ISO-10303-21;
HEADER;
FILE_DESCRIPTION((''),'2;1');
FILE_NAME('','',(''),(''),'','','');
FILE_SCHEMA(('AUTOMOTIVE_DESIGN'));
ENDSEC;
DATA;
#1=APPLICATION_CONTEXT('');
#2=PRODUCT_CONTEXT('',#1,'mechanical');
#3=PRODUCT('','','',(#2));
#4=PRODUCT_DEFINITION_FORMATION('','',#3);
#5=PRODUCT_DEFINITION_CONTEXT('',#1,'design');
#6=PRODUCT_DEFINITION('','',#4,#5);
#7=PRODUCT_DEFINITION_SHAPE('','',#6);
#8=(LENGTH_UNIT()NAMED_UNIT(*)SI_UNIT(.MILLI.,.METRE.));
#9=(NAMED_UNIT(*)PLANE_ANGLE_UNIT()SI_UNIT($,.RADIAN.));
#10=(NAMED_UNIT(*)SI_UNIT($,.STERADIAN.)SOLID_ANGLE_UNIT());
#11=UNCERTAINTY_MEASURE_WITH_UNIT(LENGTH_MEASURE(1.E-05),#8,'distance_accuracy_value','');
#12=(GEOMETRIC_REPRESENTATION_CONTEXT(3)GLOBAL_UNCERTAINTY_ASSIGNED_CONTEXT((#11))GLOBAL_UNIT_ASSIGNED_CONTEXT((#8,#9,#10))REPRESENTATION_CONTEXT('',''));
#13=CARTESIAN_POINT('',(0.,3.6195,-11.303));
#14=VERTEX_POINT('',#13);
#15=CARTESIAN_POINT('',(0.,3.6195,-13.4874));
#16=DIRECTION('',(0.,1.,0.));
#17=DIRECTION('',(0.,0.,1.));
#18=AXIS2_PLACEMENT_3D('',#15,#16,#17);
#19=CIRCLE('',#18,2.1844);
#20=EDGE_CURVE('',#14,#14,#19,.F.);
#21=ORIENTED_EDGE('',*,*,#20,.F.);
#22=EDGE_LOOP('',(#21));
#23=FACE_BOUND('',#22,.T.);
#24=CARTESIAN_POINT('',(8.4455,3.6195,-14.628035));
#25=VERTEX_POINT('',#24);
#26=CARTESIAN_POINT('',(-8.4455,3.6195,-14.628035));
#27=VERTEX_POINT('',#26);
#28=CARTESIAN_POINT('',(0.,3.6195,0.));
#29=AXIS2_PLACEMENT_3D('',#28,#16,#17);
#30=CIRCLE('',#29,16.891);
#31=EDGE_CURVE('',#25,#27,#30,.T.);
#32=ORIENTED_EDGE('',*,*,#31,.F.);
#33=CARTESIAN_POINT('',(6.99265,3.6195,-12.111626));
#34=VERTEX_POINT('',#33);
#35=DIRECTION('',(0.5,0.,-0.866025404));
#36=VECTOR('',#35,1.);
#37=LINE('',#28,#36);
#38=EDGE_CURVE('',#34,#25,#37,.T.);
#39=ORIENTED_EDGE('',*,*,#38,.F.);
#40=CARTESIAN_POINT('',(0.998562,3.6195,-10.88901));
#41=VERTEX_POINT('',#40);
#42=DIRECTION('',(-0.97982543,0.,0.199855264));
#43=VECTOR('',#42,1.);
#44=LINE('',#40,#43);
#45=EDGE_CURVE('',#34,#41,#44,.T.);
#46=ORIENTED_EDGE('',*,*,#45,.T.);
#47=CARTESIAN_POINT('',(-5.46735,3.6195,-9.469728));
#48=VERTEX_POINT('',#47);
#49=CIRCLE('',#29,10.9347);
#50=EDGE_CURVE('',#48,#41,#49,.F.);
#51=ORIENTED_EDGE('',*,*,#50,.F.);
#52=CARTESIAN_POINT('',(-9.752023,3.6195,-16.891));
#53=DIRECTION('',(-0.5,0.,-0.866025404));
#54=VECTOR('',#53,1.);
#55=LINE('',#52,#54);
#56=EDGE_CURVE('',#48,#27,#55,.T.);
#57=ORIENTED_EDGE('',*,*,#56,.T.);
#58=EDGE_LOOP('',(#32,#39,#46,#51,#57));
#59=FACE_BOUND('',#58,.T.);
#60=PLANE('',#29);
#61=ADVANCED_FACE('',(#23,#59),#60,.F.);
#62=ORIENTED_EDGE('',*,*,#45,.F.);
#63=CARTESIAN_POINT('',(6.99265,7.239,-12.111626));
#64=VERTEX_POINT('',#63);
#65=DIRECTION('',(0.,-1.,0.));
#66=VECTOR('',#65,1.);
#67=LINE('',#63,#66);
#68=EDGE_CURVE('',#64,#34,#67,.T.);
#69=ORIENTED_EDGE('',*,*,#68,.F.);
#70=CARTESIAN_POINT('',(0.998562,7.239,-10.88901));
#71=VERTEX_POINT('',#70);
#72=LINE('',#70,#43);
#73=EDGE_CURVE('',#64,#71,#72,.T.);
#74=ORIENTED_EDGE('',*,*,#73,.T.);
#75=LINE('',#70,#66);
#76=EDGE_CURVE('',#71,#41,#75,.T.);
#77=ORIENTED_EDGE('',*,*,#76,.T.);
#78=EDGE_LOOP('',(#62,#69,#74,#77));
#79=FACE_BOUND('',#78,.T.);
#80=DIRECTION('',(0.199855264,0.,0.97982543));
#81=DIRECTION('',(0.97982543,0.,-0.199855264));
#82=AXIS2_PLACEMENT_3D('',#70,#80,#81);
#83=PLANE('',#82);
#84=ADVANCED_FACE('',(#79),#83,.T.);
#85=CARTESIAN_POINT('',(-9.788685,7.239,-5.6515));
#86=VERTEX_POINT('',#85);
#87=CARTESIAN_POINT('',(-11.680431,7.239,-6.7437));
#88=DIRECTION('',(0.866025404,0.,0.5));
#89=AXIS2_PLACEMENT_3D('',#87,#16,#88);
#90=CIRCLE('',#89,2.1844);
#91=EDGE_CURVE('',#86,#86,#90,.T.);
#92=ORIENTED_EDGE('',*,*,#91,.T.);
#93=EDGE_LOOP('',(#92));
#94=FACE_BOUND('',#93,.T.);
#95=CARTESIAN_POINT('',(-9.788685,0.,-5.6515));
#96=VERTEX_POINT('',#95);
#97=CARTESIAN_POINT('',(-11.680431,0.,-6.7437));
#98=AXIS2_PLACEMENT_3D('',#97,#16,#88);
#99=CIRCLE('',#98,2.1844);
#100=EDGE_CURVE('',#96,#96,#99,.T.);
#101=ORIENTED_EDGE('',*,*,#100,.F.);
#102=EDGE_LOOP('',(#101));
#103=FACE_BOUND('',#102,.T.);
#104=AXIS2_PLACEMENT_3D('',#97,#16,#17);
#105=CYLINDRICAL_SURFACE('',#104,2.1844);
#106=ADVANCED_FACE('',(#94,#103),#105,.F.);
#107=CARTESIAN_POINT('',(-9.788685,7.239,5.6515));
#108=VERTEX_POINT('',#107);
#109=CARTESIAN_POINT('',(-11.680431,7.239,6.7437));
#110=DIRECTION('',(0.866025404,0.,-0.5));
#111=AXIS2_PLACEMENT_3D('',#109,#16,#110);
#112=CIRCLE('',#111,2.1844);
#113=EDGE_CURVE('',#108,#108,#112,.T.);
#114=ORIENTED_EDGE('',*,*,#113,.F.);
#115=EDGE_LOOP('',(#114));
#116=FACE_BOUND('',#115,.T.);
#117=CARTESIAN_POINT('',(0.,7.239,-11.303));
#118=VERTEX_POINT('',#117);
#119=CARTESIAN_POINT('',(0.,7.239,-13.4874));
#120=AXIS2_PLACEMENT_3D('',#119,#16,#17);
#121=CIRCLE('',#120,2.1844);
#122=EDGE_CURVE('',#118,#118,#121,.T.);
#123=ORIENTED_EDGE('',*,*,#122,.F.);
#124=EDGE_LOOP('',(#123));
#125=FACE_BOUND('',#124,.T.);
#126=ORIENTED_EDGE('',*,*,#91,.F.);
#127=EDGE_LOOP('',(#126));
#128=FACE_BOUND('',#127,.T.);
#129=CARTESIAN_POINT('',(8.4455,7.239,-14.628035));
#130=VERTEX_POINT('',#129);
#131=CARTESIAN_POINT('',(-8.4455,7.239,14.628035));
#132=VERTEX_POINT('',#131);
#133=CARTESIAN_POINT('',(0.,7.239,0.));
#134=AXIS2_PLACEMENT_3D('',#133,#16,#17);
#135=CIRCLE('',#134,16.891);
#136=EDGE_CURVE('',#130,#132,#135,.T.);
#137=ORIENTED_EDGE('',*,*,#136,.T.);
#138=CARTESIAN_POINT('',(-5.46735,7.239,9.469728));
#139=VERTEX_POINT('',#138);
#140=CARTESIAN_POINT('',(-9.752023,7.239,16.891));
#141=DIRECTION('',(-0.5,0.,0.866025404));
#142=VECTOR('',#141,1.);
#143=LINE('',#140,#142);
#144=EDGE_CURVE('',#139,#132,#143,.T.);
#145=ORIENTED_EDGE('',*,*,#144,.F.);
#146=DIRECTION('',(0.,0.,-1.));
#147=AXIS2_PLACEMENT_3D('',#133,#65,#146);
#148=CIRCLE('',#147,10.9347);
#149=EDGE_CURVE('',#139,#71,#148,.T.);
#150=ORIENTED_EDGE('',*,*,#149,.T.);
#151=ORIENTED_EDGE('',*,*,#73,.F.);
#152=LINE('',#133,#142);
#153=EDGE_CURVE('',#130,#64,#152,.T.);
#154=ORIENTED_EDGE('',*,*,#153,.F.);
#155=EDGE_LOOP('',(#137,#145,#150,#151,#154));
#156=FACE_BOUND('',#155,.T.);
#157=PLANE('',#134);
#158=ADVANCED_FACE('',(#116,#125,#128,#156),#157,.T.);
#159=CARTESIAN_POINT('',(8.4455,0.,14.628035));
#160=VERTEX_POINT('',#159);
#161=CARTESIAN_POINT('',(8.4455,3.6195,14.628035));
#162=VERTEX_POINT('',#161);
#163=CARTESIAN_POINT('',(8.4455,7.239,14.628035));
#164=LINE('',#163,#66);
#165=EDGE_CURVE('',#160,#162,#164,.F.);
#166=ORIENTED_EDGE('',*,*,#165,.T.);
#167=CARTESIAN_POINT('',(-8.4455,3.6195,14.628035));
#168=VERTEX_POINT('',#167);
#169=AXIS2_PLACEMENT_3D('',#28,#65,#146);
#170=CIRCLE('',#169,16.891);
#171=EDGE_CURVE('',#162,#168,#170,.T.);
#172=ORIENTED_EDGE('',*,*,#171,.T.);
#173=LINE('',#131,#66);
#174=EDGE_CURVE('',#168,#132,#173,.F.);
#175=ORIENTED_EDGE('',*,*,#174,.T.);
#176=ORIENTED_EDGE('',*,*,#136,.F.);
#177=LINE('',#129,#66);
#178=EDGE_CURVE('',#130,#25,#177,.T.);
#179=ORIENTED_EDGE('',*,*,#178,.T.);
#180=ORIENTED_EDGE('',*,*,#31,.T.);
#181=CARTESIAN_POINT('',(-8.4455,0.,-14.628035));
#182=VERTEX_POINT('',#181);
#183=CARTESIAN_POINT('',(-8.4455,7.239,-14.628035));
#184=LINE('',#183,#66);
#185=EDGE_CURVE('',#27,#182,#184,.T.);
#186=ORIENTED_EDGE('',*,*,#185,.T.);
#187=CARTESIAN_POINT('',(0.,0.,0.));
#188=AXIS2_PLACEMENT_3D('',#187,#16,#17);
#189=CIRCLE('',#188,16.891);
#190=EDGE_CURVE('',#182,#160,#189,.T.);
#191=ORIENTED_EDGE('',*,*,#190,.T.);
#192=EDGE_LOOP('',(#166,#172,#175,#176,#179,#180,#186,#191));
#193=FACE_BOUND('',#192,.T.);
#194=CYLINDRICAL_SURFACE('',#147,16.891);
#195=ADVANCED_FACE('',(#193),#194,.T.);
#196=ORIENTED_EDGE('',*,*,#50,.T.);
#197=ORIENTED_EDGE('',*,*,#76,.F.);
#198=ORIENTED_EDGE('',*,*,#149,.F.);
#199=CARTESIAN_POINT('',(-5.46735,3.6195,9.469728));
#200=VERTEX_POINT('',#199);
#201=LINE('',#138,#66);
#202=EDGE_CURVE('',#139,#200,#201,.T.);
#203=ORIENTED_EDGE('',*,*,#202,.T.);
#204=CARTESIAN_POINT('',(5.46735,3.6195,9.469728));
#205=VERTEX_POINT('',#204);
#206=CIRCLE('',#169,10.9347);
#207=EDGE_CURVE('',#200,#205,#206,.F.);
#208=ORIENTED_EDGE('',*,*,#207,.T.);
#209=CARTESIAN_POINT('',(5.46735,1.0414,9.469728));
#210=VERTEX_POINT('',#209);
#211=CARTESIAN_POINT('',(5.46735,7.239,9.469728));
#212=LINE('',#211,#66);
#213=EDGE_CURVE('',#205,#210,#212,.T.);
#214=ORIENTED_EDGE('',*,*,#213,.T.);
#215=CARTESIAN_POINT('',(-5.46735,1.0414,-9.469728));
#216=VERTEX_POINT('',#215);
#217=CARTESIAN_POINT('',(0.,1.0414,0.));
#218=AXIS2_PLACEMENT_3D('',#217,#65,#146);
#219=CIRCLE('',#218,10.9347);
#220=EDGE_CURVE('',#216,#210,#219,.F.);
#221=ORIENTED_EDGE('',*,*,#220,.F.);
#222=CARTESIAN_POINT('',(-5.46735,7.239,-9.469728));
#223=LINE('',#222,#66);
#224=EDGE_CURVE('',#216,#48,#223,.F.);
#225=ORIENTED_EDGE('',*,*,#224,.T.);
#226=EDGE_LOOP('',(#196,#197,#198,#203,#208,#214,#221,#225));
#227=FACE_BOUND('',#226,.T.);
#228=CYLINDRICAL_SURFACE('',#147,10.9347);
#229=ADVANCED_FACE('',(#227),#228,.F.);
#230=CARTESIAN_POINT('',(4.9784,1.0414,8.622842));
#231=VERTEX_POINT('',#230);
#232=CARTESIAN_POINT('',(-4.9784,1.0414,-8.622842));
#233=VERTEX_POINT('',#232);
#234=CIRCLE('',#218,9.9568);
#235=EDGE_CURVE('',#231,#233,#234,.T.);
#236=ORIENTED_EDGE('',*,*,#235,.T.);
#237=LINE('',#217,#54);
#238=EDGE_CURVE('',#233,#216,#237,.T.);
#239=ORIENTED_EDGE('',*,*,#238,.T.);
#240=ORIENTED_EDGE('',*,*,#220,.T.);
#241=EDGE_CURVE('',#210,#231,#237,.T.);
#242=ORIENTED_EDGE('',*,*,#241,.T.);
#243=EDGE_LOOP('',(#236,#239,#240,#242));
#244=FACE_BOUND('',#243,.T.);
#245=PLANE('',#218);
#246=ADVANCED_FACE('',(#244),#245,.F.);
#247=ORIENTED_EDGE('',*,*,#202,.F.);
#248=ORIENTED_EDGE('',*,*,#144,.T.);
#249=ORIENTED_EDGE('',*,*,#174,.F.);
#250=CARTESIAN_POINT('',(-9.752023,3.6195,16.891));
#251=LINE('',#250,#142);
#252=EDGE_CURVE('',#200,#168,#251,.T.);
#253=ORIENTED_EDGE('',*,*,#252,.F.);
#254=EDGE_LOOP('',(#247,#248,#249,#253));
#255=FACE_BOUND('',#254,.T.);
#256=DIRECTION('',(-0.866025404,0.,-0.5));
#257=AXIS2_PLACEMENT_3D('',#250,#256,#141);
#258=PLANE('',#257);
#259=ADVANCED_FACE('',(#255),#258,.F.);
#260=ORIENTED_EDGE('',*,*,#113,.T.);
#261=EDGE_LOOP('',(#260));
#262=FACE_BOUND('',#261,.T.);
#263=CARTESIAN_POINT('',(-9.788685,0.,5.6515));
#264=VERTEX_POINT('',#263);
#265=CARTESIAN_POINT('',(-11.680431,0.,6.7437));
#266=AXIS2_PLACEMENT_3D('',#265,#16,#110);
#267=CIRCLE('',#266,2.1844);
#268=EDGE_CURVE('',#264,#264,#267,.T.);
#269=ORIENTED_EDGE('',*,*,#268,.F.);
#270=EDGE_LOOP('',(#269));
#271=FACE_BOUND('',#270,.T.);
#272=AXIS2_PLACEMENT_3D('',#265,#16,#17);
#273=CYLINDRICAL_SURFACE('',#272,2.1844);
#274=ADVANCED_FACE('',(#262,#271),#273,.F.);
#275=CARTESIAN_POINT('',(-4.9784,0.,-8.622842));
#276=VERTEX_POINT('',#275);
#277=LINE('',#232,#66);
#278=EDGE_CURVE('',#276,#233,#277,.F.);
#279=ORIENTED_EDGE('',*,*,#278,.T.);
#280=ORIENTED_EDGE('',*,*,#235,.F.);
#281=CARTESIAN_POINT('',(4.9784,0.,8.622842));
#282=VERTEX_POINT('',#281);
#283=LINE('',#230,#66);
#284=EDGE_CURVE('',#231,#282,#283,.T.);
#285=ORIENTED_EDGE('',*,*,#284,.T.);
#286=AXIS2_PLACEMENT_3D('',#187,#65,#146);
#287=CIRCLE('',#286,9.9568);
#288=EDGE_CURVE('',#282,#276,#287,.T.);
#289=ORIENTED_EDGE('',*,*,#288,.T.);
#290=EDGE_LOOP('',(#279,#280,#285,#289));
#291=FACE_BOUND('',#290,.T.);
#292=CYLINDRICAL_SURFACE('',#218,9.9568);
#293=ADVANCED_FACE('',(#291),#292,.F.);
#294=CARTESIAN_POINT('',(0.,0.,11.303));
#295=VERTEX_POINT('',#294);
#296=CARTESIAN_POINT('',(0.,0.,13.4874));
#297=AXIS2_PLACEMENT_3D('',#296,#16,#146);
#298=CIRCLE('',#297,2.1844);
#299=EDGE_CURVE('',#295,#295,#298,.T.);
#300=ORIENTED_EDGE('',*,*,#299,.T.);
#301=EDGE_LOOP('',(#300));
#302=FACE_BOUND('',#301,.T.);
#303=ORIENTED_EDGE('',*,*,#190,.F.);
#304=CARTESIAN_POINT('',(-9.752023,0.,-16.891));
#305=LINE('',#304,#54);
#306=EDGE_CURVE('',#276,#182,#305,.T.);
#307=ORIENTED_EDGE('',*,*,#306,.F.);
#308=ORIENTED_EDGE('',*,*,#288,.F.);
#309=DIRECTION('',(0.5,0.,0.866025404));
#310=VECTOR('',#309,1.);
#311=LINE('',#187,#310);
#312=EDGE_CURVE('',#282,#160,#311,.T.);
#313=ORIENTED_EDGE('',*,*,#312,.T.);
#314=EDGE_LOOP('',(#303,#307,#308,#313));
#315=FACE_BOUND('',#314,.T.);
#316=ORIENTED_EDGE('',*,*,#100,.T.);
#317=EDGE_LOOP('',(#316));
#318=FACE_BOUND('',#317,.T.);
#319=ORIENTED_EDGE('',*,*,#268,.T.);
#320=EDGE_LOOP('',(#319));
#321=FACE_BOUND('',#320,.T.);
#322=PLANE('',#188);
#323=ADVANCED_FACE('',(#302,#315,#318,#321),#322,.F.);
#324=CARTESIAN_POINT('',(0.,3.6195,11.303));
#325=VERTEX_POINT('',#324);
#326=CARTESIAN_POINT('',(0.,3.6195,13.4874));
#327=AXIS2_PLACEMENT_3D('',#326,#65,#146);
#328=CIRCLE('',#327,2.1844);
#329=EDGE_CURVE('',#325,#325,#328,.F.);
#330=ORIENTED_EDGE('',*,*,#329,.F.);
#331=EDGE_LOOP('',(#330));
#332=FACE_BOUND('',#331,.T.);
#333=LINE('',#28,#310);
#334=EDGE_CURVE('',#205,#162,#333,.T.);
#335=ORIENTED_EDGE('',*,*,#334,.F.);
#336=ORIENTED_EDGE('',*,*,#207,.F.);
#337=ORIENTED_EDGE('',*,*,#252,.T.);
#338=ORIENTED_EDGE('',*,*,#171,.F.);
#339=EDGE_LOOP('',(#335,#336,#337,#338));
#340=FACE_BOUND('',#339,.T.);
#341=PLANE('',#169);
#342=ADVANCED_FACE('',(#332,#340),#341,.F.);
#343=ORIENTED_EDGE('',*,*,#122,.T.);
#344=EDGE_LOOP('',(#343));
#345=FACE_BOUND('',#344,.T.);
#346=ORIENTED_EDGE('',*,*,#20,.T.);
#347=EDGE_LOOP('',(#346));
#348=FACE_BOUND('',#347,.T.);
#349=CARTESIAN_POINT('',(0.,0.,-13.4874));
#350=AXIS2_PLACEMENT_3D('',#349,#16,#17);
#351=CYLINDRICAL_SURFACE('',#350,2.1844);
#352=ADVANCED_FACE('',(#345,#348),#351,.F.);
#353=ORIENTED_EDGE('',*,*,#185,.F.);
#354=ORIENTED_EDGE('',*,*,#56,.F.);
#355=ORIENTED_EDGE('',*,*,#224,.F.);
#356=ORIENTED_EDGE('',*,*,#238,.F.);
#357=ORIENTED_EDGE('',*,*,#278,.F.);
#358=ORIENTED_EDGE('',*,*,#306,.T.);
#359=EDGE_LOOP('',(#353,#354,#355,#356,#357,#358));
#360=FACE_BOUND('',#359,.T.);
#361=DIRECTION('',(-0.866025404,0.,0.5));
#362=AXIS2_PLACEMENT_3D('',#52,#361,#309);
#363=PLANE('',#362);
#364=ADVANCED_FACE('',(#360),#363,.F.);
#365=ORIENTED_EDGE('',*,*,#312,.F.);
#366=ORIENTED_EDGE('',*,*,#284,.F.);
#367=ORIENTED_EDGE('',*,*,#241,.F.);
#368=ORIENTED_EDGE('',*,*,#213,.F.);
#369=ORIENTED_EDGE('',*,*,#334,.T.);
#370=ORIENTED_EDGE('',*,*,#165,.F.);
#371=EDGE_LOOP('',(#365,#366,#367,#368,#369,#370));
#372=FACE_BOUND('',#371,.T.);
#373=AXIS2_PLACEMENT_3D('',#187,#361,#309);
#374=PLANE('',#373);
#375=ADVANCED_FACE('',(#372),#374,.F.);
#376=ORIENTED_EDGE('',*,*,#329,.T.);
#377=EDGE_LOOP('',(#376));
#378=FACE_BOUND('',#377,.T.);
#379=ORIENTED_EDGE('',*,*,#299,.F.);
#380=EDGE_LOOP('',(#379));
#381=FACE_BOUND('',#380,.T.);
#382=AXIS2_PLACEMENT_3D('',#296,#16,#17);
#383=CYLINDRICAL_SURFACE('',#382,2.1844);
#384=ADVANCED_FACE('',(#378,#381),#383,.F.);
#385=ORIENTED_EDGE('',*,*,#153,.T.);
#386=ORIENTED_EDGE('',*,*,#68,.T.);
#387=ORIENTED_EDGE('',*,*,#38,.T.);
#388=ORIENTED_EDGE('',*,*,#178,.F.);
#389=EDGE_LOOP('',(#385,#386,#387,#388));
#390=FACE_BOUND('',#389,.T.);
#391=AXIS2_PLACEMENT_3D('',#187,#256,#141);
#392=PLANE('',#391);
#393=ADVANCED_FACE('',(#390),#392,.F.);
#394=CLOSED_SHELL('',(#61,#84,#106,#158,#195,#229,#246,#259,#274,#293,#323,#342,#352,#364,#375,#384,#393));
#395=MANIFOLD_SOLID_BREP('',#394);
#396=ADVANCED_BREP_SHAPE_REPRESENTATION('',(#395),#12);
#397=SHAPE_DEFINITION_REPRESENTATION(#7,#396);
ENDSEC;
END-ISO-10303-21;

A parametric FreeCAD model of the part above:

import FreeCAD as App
import Part
import Sketcher
from FreeCAD import Vector
Q = App.Units.Quantity


def add_polygon(sketch, points):
    """Adds a closed chain of lines whose ends are joined by coincident constraints."""
    first, n = sketch.GeometryCount, len(points)
    for a, b in zip(points, points[1:] + points[:1]):
        sketch.addGeometry(Part.LineSegment(App.Vector(*a, 0), App.Vector(*b, 0)), False)
    for i in range(n):
        sketch.addConstraint(Sketcher.Constraint("Coincident", first + i, 2, first + (i + 1) % n, 1))

doc = App.newDocument("Part")
body = doc.addObject("PartDesign::Body", "Body")

sketch1 = doc.addObject("Sketcher::SketchObject", "Sketch")
body.addObject(sketch1)
sketch1.AttachmentSupport = (doc.XZ_Plane, [""])
sketch1.MapMode = "FlatFace"
sketch1.addGeometry(Part.Circle(Vector(0, 0, 0), Vector(0, 0, 1), 17), False)
sketch1.addConstraint(Sketcher.Constraint("Coincident", 0, 3, -1, 1))
sketch1.addConstraint(Sketcher.Constraint("Diameter", 0, Q("1.33 in")))
pad1 = doc.addObject("PartDesign::Pad", "Pad")
body.addObject(pad1)
pad1.Profile = sketch1
pad1.Length = Q("0.285 in")
pad1.Reversed = True

sketch2 = doc.addObject("Sketcher::SketchObject", "Sketch001")
body.addObject(sketch2)
sketch2.AttachmentSupport = (doc.XZ_Plane, [""])
sketch2.MapMode = "FlatFace"
sketch2.addGeometry(Part.Circle(Vector(0, 0, 0), Vector(0, 0, 1), 11), False)
sketch2.addConstraint(Sketcher.Constraint("Coincident", 0, 3, -1, 1))
sketch2.addConstraint(Sketcher.Constraint("Diameter", 0, Q("0.861 in")))
pocket1 = doc.addObject("PartDesign::Pocket", "Pocket")
body.addObject(pocket1)
pocket1.Profile = sketch2
pocket1.Type = "ThroughAll"

sketch3 = doc.addObject("Sketcher::SketchObject", "Sketch002")
body.addObject(sketch3)
sketch3.AttachmentSupport = (doc.XZ_Plane, [""])
sketch3.MapMode = "FlatFace"
sketch3.addGeometry(Part.Circle(Vector(0, 0, 0), Vector(0, 0, 1), 11), False)
sketch3.addGeometry(Part.Circle(Vector(0, 0, 0), Vector(0, 0, 1), 10), False)
sketch3.addConstraint(Sketcher.Constraint("Coincident", 0, 3, -1, 1))
sketch3.addConstraint(Sketcher.Constraint("Coincident", 1, 3, -1, 1))
sketch3.addConstraint(Sketcher.Constraint("Diameter", 0, Q("0.861 in")))
sketch3.addConstraint(Sketcher.Constraint("Diameter", 1, Q("0.784 in")))
pad2 = doc.addObject("PartDesign::Pad", "Pad001")
body.addObject(pad2)
pad2.Profile = sketch3
pad2.Length = Q("0.041 in")
pad2.Reversed = True

sketch4 = doc.addObject("Sketcher::SketchObject", "Sketch003")
body.addObject(sketch4)
sketch4.AttachmentSupport = (doc.XZ_Plane, [""])
sketch4.MapMode = "FlatFace"
sketch4.AttachmentOffset = App.Placement(Vector(0, 0, -0.285 * 25.4), App.Rotation())
sketch4.addGeometry(Part.Circle(Vector(0, -13.5, 0), Vector(0, 0, 1), 2.2), False)
sketch4.addConstraint(Sketcher.Constraint("PointOnObject", 0, 3, -2))
sketch4.addConstraint(Sketcher.Constraint("Diameter", 0, Q("0.172 in")))
sketch4.addConstraint(Sketcher.Constraint("DistanceY", 0, 3, -1, 1, Q("0.531 in")))
pocket2 = doc.addObject("PartDesign::Pocket", "Pocket001")
body.addObject(pocket2)
pocket2.Profile = sketch4
pocket2.Type = "ThroughAll"
pocket2.Reversed = True
doc.recompute()

polarpattern = doc.addObject("PartDesign::PolarPattern", "PolarPattern")
body.addObject(polarpattern)
polarpattern.Originals = [pocket2]
polarpattern.Axis = (doc.Y_Axis, [""])
polarpattern.Angle = 360
polarpattern.Occurrences = 6
body.Tip = polarpattern

sketch5 = doc.addObject("Sketcher::SketchObject", "Sketch004")
body.addObject(sketch5)
sketch5.AttachmentSupport = (doc.XZ_Plane, [""])
sketch5.MapMode = "FlatFace"
sketch5.AttachmentOffset = App.Placement(Vector(0, 0, -0.285 * 25.4), App.Rotation())
add_polygon(sketch5, [(17, -29), (0, 0), (17, 29)])
sketch5.addConstraint(Sketcher.Constraint("Vertical", 2))
sketch5.addConstraint(Sketcher.Constraint("Coincident", 0, 2, -1, 1))
sketch5.addConstraint(Sketcher.Constraint("Equal", 0, 1))
sketch5.addConstraint(Sketcher.Constraint("Angle", 0, Q("120 deg")))
sketch5.addConstraint(Sketcher.Constraint("Distance", 0, Q("1.33 in")))
pocket3 = doc.addObject("PartDesign::Pocket", "Pocket002")
body.addObject(pocket3)
pocket3.Profile = sketch5
pocket3.Type = "ThroughAll"
pocket3.Reversed = True

sketch6 = doc.addObject("Sketcher::SketchObject", "Sketch005")
body.addObject(sketch6)
sketch6.AttachmentSupport = (doc.XZ_Plane, [""])
sketch6.MapMode = "FlatFace"
sketch6.AttachmentOffset = App.Placement(Vector(0, 0, -0.285 * 25.4), App.Rotation())
add_polygon(sketch6, [(10, 17), (0, 0), (-10, 17)])
sketch6.addConstraint(Sketcher.Constraint("Horizontal", 2))
sketch6.addConstraint(Sketcher.Constraint("Coincident", 0, 2, -1, 1))
sketch6.addConstraint(Sketcher.Constraint("Equal", 0, 1))
sketch6.addConstraint(Sketcher.Constraint("Angle", 0, Q("-120 deg")))
sketch6.addConstraint(Sketcher.Constraint("DistanceY", -1, 1, 1, 2, Q("0.665 in")))
pocket4 = doc.addObject("PartDesign::Pocket", "Pocket003")
body.addObject(pocket4)
pocket4.Profile = sketch6
pocket4.Length = Q("0.1425 in")
pocket4.Reversed = True

sketch7 = doc.addObject("Sketcher::SketchObject", "Sketch006")
body.addObject(sketch7)
sketch7.AttachmentSupport = (doc.XZ_Plane, [""])
sketch7.MapMode = "FlatFace"
add_polygon(sketch7, [(10, -17), (0, 0), (-10, -17)])
sketch7.addConstraint(Sketcher.Constraint("Horizontal", 2))
sketch7.addConstraint(Sketcher.Constraint("Coincident", 0, 2, -1, 1))
sketch7.addConstraint(Sketcher.Constraint("Equal", 0, 1))
sketch7.addConstraint(Sketcher.Constraint("Angle", 0, Q("120 deg")))
sketch7.addConstraint(Sketcher.Constraint("DistanceY", 1, 2, -1, 1, Q("0.665 in")))
pocket5 = doc.addObject("PartDesign::Pocket", "Pocket004")
body.addObject(pocket5)
pocket5.Profile = sketch7
pocket5.Length = Q("0.1425 in")

sketch8 = doc.addObject("Sketcher::SketchObject", "Sketch007")
body.addObject(sketch8)
sketch8.AttachmentSupport = (doc.XZ_Plane, [""])
sketch8.MapMode = "FlatFace"
sketch8.AttachmentOffset = App.Placement(Vector(0, 0, -0.1425 * 25.4), App.Rotation())
add_polygon(sketch8, [(7, -12), (1, -11), (5, 9)])
sketch8.addConstraint(Sketcher.Constraint("Perpendicular", 0, 1))
sketch8.addConstraint(Sketcher.Constraint("Distance", 1, Q("0.784 in")))
sketch8.addConstraint(Sketcher.Constraint("DistanceX", -1, 1, 1, 2, Q("0.196 in")))
sketch8.addConstraint(Sketcher.Constraint("DistanceY", 0, 2, -1, 1, 10.88901))
sketch8.addConstraint(Sketcher.Constraint("DistanceY", -1, 1, 1, 2, 8.622842))
sketch8.addConstraint(Sketcher.Constraint("DistanceX", -1, 1, 2, 2, 6.99265))
pocket6 = doc.addObject("PartDesign::Pocket", "Pocket005")
body.addObject(pocket6)
pocket6.Profile = sketch8
pocket6.Type = "ThroughAll"

doc.recompute()
